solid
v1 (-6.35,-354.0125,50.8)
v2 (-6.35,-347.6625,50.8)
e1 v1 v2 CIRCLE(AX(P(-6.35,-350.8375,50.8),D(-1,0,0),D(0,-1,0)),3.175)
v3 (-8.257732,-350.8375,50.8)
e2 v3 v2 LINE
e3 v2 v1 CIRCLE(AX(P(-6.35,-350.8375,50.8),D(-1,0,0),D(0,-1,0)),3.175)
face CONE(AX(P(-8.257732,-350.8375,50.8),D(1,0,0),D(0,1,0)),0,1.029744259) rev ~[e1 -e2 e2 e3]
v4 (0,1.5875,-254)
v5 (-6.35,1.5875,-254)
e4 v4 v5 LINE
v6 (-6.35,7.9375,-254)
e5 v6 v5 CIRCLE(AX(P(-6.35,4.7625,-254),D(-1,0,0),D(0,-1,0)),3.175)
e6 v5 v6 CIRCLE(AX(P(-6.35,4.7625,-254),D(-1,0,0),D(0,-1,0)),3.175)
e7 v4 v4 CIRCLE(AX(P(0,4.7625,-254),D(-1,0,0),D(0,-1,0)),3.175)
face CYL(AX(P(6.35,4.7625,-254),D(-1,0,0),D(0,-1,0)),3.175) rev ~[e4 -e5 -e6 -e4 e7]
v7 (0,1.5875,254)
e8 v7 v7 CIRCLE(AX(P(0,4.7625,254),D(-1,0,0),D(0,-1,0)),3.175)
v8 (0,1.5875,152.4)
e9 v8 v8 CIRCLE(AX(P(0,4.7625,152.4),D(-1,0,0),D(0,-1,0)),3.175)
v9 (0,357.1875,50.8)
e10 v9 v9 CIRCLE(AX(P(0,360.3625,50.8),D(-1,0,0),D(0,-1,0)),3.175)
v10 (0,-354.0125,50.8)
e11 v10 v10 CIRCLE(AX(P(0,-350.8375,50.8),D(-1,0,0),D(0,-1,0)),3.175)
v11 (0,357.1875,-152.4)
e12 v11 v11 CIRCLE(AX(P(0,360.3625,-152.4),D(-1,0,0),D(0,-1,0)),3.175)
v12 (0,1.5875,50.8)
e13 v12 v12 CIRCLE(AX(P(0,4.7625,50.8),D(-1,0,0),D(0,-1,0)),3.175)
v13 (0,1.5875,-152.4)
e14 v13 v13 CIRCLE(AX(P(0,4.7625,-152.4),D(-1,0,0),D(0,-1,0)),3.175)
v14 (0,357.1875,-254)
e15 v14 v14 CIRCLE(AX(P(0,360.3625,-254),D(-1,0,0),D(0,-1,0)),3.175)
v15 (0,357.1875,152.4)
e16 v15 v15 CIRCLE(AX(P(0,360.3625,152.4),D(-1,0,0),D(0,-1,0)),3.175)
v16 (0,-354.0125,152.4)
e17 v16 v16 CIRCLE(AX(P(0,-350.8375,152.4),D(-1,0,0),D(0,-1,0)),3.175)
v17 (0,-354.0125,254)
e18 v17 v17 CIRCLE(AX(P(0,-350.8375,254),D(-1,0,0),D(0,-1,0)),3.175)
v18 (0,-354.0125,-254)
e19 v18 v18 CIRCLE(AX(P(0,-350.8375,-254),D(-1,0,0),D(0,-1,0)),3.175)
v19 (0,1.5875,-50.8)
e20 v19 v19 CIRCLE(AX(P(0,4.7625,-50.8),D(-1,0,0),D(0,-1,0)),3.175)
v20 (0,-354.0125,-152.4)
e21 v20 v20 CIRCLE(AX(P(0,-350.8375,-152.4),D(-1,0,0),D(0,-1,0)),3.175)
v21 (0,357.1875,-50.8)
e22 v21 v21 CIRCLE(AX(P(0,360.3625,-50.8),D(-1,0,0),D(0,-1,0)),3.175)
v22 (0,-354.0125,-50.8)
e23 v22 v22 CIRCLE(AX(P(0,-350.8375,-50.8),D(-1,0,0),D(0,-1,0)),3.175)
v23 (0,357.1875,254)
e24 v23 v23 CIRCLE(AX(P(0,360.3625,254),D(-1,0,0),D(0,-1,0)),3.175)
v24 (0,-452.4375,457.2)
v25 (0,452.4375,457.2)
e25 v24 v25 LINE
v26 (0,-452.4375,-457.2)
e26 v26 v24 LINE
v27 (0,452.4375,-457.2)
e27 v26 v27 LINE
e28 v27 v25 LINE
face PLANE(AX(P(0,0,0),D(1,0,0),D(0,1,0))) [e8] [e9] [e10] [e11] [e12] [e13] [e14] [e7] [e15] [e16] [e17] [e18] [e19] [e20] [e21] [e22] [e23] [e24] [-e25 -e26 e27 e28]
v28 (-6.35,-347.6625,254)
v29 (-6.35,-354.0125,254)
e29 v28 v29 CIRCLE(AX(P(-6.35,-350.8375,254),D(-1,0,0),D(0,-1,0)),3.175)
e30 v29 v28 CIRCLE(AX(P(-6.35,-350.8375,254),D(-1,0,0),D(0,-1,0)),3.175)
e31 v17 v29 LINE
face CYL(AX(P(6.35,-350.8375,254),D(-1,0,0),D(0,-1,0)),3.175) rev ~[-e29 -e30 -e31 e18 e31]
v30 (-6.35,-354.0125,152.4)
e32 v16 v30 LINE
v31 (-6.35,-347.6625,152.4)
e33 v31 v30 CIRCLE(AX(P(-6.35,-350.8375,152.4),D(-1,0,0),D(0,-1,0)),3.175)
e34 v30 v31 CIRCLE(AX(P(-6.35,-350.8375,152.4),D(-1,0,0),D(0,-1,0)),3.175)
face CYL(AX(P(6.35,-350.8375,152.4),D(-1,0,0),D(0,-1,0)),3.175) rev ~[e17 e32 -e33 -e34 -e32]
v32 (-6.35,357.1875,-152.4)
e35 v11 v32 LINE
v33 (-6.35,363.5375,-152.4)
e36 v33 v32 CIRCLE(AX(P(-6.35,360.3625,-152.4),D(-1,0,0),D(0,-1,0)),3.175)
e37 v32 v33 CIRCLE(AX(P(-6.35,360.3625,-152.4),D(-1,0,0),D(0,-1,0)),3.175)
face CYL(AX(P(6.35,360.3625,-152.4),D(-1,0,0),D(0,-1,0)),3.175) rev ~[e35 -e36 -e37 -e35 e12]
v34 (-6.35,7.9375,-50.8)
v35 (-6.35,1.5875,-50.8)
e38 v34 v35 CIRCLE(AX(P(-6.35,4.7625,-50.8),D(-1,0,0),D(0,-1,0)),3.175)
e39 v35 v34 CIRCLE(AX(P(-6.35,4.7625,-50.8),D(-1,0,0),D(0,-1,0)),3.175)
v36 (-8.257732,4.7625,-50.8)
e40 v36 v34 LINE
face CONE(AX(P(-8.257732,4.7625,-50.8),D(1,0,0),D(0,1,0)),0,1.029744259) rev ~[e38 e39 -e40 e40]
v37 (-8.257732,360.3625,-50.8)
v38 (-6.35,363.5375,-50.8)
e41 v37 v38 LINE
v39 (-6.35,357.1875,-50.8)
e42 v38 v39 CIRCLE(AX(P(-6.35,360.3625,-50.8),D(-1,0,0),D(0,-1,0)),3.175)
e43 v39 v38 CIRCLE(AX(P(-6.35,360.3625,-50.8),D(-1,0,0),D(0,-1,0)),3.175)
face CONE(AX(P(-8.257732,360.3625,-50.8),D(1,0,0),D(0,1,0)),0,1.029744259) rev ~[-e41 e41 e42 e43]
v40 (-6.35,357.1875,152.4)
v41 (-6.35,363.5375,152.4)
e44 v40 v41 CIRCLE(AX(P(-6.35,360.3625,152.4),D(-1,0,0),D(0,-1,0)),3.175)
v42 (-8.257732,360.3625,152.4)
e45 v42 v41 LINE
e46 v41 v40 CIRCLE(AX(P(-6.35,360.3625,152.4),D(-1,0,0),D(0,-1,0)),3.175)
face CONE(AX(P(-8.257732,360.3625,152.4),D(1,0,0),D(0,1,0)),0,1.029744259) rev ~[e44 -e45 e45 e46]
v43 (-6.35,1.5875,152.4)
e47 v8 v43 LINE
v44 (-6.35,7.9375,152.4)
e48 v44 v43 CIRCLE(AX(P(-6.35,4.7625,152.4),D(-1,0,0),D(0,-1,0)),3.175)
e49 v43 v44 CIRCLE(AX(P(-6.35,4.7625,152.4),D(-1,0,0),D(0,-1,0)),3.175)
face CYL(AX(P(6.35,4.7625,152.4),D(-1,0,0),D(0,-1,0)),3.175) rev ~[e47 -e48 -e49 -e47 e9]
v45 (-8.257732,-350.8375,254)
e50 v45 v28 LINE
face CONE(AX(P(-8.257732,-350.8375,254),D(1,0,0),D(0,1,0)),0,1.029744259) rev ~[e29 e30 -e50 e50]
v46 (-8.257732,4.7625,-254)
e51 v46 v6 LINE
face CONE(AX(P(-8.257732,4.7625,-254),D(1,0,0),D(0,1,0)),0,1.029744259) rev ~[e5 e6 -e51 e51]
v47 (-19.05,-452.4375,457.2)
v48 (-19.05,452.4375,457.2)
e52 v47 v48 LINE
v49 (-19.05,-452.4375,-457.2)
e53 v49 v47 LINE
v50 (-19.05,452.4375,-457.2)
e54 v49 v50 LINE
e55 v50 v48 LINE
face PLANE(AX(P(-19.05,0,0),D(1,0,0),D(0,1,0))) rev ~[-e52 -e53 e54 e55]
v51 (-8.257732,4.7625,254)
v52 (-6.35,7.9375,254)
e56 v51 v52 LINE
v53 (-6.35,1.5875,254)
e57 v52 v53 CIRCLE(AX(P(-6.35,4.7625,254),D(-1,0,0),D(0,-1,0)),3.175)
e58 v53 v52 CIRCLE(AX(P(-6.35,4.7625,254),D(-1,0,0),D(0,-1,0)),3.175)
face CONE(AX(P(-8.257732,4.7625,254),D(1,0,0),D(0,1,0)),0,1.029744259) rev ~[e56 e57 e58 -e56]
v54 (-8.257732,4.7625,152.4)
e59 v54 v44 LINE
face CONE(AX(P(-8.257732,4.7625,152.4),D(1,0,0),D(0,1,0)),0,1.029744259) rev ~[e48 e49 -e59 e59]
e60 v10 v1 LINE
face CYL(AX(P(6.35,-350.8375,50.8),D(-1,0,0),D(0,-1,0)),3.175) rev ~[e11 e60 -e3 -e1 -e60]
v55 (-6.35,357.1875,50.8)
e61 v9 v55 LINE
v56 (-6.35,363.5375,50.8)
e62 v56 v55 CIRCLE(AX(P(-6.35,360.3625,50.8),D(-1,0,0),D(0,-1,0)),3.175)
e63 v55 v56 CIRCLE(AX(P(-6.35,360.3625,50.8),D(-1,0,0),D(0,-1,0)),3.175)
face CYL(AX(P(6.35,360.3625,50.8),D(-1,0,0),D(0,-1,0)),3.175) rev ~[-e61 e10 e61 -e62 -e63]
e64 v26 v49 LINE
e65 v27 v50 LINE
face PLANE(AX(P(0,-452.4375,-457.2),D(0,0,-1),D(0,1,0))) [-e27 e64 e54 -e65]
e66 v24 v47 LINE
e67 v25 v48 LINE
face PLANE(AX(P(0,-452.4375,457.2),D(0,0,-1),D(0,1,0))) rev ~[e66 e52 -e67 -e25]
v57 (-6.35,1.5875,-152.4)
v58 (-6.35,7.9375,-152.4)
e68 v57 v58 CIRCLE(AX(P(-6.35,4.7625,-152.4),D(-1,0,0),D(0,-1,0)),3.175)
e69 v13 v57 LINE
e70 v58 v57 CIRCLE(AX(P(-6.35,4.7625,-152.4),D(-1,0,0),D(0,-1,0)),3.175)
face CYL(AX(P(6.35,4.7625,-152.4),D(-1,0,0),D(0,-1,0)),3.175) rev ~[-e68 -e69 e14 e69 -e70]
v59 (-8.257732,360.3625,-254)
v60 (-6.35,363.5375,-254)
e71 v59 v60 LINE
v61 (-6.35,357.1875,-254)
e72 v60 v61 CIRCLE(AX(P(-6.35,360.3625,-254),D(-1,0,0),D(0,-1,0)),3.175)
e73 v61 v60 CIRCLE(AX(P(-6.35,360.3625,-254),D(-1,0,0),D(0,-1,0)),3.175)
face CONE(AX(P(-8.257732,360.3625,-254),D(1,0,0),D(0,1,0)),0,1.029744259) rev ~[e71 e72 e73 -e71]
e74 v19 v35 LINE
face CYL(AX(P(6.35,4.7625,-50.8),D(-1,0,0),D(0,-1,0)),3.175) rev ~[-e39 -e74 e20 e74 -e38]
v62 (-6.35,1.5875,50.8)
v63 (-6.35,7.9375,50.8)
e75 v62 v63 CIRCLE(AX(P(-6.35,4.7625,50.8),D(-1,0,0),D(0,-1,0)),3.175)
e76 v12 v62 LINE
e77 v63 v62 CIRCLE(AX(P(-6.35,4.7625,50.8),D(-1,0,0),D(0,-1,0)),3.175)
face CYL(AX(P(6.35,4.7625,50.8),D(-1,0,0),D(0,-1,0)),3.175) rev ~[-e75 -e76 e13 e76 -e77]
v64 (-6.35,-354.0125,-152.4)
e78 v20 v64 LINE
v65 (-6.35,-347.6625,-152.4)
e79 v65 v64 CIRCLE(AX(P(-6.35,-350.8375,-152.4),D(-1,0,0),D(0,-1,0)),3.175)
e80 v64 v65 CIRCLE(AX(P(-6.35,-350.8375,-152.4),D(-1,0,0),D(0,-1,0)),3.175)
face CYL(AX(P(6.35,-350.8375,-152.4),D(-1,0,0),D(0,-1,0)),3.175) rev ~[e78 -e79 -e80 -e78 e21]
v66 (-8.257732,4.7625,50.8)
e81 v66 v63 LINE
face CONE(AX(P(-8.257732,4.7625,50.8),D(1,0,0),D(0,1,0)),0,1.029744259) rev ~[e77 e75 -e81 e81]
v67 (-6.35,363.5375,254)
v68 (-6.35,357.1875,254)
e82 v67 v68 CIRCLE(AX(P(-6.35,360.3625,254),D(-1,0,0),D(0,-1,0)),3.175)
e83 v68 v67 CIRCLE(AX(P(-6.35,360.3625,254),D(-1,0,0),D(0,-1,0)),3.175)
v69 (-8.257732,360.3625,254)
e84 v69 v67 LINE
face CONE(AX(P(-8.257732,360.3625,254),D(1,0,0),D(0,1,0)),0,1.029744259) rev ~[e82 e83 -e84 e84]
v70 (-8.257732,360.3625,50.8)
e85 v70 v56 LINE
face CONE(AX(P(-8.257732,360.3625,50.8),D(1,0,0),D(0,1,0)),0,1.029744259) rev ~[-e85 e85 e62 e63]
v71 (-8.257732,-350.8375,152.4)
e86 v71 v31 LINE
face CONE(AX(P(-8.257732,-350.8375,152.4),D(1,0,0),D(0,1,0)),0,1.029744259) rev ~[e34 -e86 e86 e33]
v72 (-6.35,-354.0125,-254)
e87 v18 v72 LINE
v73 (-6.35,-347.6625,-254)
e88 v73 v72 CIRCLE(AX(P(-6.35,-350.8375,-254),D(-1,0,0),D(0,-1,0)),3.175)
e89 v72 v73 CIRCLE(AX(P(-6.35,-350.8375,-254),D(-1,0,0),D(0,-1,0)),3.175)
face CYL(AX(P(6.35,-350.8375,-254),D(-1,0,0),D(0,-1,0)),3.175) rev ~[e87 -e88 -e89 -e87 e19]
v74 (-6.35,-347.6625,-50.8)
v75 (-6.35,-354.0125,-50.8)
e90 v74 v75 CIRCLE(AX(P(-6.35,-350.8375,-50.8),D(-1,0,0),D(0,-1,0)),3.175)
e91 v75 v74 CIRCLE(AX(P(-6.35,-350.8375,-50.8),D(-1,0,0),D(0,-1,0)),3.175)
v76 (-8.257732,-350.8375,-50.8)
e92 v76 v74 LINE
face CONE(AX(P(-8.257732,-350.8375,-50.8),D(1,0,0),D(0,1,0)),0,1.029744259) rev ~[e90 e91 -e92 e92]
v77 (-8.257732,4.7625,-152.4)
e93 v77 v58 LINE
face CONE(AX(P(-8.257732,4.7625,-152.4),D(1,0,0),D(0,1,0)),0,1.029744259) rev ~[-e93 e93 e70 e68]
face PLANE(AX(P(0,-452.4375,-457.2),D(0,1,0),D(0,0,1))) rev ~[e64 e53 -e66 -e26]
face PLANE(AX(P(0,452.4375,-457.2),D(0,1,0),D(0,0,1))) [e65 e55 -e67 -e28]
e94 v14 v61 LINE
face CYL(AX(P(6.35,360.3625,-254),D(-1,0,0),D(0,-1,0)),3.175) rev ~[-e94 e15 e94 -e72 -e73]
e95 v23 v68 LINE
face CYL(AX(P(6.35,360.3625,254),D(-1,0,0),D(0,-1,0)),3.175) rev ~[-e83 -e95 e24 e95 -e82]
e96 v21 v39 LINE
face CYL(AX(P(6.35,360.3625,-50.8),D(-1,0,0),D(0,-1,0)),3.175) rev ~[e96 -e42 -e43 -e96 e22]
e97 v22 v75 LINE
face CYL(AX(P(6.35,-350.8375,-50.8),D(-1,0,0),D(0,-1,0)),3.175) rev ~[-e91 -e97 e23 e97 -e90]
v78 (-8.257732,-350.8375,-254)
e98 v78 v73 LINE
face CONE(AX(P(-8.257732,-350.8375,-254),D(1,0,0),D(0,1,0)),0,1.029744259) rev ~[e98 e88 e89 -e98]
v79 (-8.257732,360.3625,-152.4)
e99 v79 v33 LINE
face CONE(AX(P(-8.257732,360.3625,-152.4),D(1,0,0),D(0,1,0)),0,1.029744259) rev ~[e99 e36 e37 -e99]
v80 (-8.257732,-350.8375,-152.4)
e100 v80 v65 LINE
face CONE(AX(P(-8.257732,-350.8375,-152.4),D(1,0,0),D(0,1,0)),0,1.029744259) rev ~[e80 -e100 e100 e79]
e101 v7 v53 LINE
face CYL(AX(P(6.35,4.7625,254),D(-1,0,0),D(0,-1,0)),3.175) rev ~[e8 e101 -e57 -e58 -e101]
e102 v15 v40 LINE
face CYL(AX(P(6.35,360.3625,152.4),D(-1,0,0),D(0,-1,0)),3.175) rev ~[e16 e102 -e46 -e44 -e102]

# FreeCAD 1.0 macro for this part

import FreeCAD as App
import Part
import Sketcher

V = App.Vector
Q = App.Units.Quantity


def add_polygon(sketch, points):
    """Adds a closed chain of lines whose ends are joined by coincident constraints."""
    first, n = sketch.GeometryCount, len(points)
    for a, b in zip(points, points[1:] + points[:1]):
        sketch.addGeometry(Part.LineSegment(App.Vector(*a, 0), App.Vector(*b, 0)), False)
    for i in range(n):
        sketch.addConstraint(Sketcher.Constraint("Coincident", first + i, 2, first + (i + 1) % n, 1))

doc = App.newDocument("Part")
body = doc.addObject("PartDesign::Body", "Body")

# Sketch on YZ plane
sketch1 = body.newObject("Sketcher::SketchObject", "Sketch")
sketch1.AttachmentSupport = (doc.getObject("YZ_Plane"), [""])
sketch1.MapMode = "FlatFace"
add_polygon(sketch1, [(-452, 457), (-452, -457), (452, -457), (452, 457)])  # lines 0-3
sketch1.addConstraint(Sketcher.Constraint("Vertical", 0))
sketch1.addConstraint(Sketcher.Constraint("Horizontal", 1))
sketch1.addConstraint(Sketcher.Constraint("Vertical", 2))
sketch1.addConstraint(Sketcher.Constraint("Horizontal", 3))
sketch1.addConstraint(Sketcher.Constraint("Symmetric", 0, 2, 2, 2, -1, 1))
sketch1.addConstraint(Sketcher.Constraint("DistanceY", 0, 2, 0, 1, Q("36 in")))
sketch1.addConstraint(Sketcher.Constraint("DistanceX", 1, 1, 1, 2, Q("35.625 in")))
pad1 = body.newObject("PartDesign::Pad", "Pad")
pad1.Profile = sketch1
pad1.Length = Q("0.75 in")
pad1.Reversed = True

# Sketch on YZ plane
sketch2 = body.newObject("Sketcher::SketchObject", "Sketch001")
sketch2.AttachmentSupport = (doc.getObject("YZ_Plane"), [""])
sketch2.MapMode = "FlatFace"
sketch2.addGeometry(Part.Circle(V(360.4, -254, 0), V(0, 0, 1), 3.2), False)
sketch2.addGeometry(Part.Circle(V(-350.8, -152.4, 0), V(0, 0, 1), 3.2), False)
sketch2.addGeometry(Part.Circle(V(360.4, 254, 0), V(0, 0, 1), 3.2), False)
sketch2.addGeometry(Part.Circle(V(4.8, 254, 0), V(0, 0, 1), 3.2), False)
sketch2.addGeometry(Part.Circle(V(360.4, -152.4, 0), V(0, 0, 1), 3.2), False)
sketch2.addGeometry(Part.Circle(V(360.4, 152.4, 0), V(0, 0, 1), 3.2), False)
sketch2.addGeometry(Part.Circle(V(-350.8, -254, 0), V(0, 0, 1), 3.2), False)
sketch2.addGeometry(Part.Circle(V(4.8, 152.4, 0), V(0, 0, 1), 3.2), False)
sketch2.addGeometry(Part.Circle(V(360.4, -50.8, 0), V(0, 0, 1), 3.2), False)
sketch2.addGeometry(Part.Circle(V(-350.8, 152.4, 0), V(0, 0, 1), 3.2), False)
sketch2.addGeometry(Part.Circle(V(360.4, 50.8, 0), V(0, 0, 1), 3.2), False)
sketch2.addGeometry(Part.Circle(V(-350.8, 254, 0), V(0, 0, 1), 3.2), False)
sketch2.addGeometry(Part.Circle(V(4.8, -152.4, 0), V(0, 0, 1), 3.2), False)
sketch2.addGeometry(Part.Circle(V(-350.8, -50.8, 0), V(0, 0, 1), 3.2), False)
sketch2.addGeometry(Part.Circle(V(4.8, -50.8, 0), V(0, 0, 1), 3.2), False)
sketch2.addGeometry(Part.Circle(V(-350.8, 50.8, 0), V(0, 0, 1), 3.2), False)
sketch2.addGeometry(Part.Circle(V(4.8, 50.8, 0), V(0, 0, 1), 3.2), False)
sketch2.addGeometry(Part.Circle(V(4.8, -254, 0), V(0, 0, 1), 3.2), False)
sketch2.addConstraint(Sketcher.Constraint("Equal", 0, 1))
sketch2.addConstraint(Sketcher.Constraint("Equal", 1, 2))
sketch2.addConstraint(Sketcher.Constraint("Equal", 2, 3))
sketch2.addConstraint(Sketcher.Constraint("Equal", 3, 4))
sketch2.addConstraint(Sketcher.Constraint("Equal", 4, 5))
sketch2.addConstraint(Sketcher.Constraint("Equal", 5, 6))
sketch2.addConstraint(Sketcher.Constraint("Equal", 6, 7))
sketch2.addConstraint(Sketcher.Constraint("Equal", 7, 8))
sketch2.addConstraint(Sketcher.Constraint("Equal", 8, 9))
sketch2.addConstraint(Sketcher.Constraint("Equal", 9, 10))
sketch2.addConstraint(Sketcher.Constraint("Equal", 10, 11))
sketch2.addConstraint(Sketcher.Constraint("Equal", 11, 12))
sketch2.addConstraint(Sketcher.Constraint("Equal", 12, 13))
sketch2.addConstraint(Sketcher.Constraint("Equal", 13, 14))
sketch2.addConstraint(Sketcher.Constraint("Equal", 14, 15))
sketch2.addConstraint(Sketcher.Constraint("Equal", 15, 16))
sketch2.addConstraint(Sketcher.Constraint("Equal", 16, 17))
sketch2.addConstraint(Sketcher.Constraint("Symmetric", 0, 3, 2, 3, -1))
sketch2.addConstraint(Sketcher.Constraint("Symmetric", 4, 3, 5, 3, -1))
sketch2.addConstraint(Sketcher.Constraint("Symmetric", 1, 3, 9, 3, -1))
sketch2.addConstraint(Sketcher.Constraint("Symmetric", 8, 3, 10, 3, -1))
sketch2.addConstraint(Sketcher.Constraint("Symmetric", 6, 3, 11, 3, -1))
sketch2.addConstraint(Sketcher.Constraint("Symmetric", 7, 3, 12, 3, -1))
sketch2.addConstraint(Sketcher.Constraint("Symmetric", 13, 3, 15, 3, -1))
sketch2.addConstraint(Sketcher.Constraint("Symmetric", 14, 3, 16, 3, -1))
sketch2.addConstraint(Sketcher.Constraint("Symmetric", 3, 3, 17, 3, -1))
sketch2.addConstraint(Sketcher.Constraint("Horizontal", 2, 3, 3, 3))
sketch2.addConstraint(Sketcher.Constraint("Horizontal", 1, 3, 4, 3))
sketch2.addConstraint(Sketcher.Constraint("Horizontal", 0, 3, 6, 3))
sketch2.addConstraint(Sketcher.Constraint("Horizontal", 5, 3, 7, 3))
sketch2.addConstraint(Sketcher.Constraint("Horizontal", 8, 3, 13, 3))
sketch2.addConstraint(Sketcher.Constraint("Horizontal", 13, 3, 14, 3))
sketch2.addConstraint(Sketcher.Constraint("Vertical", 2, 3, 4, 3))
sketch2.addConstraint(Sketcher.Constraint("Vertical", 1, 3, 6, 3))
sketch2.addConstraint(Sketcher.Constraint("Vertical", 3, 3, 7, 3))
sketch2.addConstraint(Sketcher.Constraint("Vertical", 5, 3, 8, 3))
sketch2.addConstraint(Sketcher.Constraint("Vertical", 11, 3, 13, 3))
sketch2.addConstraint(Sketcher.Constraint("Vertical", 12, 3, 14, 3))
sketch2.addConstraint(Sketcher.Constraint("Diameter", 0, Q("0.25 in")))
sketch2.addConstraint(Sketcher.Constraint("DistanceY", 0, 3, -1, 1, Q("10 in")))
sketch2.addConstraint(Sketcher.Constraint("DistanceY", 1, 3, -1, 1, Q("6 in")))
sketch2.addConstraint(Sketcher.Constraint("DistanceY", 8, 3, -1, 1, Q("2 in")))
sketch2.addConstraint(Sketcher.Constraint("DistanceX", 1, 3, 0, 3, Q("28 in")))
sketch2.addConstraint(Sketcher.Constraint("DistanceX", 3, 3, 2, 3, Q("14 in")))
sketch2.addConstraint(Sketcher.Constraint("DistanceX", -1, 1, 0, 3, Q("14.1875 in")))
doc.recompute()
hole = body.newObject("PartDesign::Hole", "Hole")
hole.Profile = sketch2
hole.ThreadType = "None"
hole.Diameter = Q("0.25 in")
hole.DepthType = "Dimension"
hole.Depth = Q("0.25 in")
hole.DrillPoint = "Angled"
hole.DrillPointAngle = 118

doc.recompute()
